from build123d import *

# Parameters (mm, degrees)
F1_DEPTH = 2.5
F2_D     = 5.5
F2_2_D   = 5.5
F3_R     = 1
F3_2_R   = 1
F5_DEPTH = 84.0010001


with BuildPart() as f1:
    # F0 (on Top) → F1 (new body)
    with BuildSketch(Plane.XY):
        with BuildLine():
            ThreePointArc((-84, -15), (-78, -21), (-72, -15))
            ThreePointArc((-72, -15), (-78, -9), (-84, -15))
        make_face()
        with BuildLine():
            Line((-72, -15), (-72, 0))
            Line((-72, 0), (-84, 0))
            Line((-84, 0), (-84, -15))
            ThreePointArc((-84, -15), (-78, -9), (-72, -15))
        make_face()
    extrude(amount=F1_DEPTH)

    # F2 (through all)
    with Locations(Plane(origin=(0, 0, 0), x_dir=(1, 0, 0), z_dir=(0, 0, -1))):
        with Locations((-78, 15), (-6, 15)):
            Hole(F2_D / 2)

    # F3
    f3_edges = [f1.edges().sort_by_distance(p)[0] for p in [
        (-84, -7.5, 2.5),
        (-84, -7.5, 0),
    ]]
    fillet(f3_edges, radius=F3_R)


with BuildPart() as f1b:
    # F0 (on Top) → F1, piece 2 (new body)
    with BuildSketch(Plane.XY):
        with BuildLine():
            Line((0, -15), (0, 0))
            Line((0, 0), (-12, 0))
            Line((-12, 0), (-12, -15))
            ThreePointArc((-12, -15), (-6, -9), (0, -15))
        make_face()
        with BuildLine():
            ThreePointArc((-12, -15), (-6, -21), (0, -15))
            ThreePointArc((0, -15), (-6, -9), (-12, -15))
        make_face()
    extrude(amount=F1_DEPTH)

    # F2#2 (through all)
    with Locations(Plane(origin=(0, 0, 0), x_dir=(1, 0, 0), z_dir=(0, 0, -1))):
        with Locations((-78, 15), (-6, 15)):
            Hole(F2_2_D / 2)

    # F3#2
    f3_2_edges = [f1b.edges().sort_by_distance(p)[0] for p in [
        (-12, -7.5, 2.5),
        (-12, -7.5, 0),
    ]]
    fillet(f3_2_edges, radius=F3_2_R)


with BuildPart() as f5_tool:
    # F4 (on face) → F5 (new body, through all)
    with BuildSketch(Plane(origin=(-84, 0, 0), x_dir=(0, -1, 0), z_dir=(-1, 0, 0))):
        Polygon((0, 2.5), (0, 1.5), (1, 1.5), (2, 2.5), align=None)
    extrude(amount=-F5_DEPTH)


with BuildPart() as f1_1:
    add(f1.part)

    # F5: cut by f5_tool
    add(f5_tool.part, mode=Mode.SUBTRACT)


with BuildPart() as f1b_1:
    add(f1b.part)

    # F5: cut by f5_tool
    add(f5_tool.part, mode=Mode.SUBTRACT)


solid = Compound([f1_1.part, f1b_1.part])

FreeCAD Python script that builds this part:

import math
import FreeCAD as App
import Part
import Sketcher
Q = App.Units.Quantity


def edges_at(feature, points):
    """Names of the edges that pass closest to the given points."""
    edges = feature.Shape.Edges
    near = lambda p: min(range(len(edges)), key=lambda i: edges[i].distToShape(Part.Vertex(*p))[0])
    return sorted({f"Edge{near(p) + 1}" for p in points})


def add_polygon(sketch, points):
    """Adds a closed chain of lines whose ends are joined by coincident constraints."""
    first, n = sketch.GeometryCount, len(points)
    for a, b in zip(points, points[1:] + points[:1]):
        sketch.addGeometry(Part.LineSegment(App.Vector(*a, 0), App.Vector(*b, 0)), False)
    for i in range(n):
        sketch.addConstraint(Sketcher.Constraint("Coincident", first + i, 2, first + (i + 1) % n, 1))

doc = App.newDocument("Part")
body = doc.addObject("PartDesign::Body", "Body")

# Sketch on XY plane
sketch1 = doc.addObject("Sketcher::SketchObject", "Sketch")
body.addObject(sketch1)
sketch1.AttachmentSupport = (doc.XY_Plane, [""])
sketch1.MapMode = "FlatFace"
sketch1.addGeometry([
    Part.ArcOfCircle(Part.Circle(App.Vector(-78, -15, 0), App.Vector(0, 0, 1), 6), math.radians(180), math.radians(360)),
    Part.LineSegment(App.Vector(-72, -15, 0), App.Vector(-72, 0, 0)),
    Part.LineSegment(App.Vector(-72, 0, 0), App.Vector(-84, 0, 0)),
    Part.LineSegment(App.Vector(-84, 0, 0), App.Vector(-84, -15, 0)),
], False)
sketch1.addConstraint([
    Sketcher.Constraint("Tangent", 0, 2, 1, 1),
    Sketcher.Constraint("Coincident", 1, 2, 2, 1),
    Sketcher.Constraint("Coincident", 2, 2, 3, 1),
    Sketcher.Constraint("Tangent", 3, 2, 0, 1),
    Sketcher.Constraint("Vertical", 1),
    Sketcher.Constraint("Horizontal", 2),
    Sketcher.Constraint("Vertical", 3),
    Sketcher.Constraint("PointOnObject", 1, 2, -1),
    Sketcher.Constraint("Radius", 0, Q("6 mm")),
    Sketcher.Constraint("DistanceY", 1, 1, 1, 2, Q("15 mm")),
    Sketcher.Constraint("DistanceX", 0, 3, -1, 1, Q("78 mm")),
])
pad1 = doc.addObject("PartDesign::Pad", "Pad")
body.addObject(pad1)
pad1.Profile = sketch1
pad1.Length = 2.5

# Sketch on XY plane
sketch2 = doc.addObject("Sketcher::SketchObject", "Sketch001")
body.addObject(sketch2)
sketch2.AttachmentSupport = (doc.XY_Plane, [""])
sketch2.MapMode = "FlatFace"
sketch2.addGeometry([
    Part.Circle(App.Vector(-78, -15, 0), App.Vector(0, 0, 1), 2.8),
    Part.Circle(App.Vector(-6, -15, 0), App.Vector(0, 0, 1), 2.8),
], False)
sketch2.addConstraint([
    Sketcher.Constraint("Equal", 0, 1),
    Sketcher.Constraint("Horizontal", 0, 3, 1, 3),
    Sketcher.Constraint("Diameter", 0, Q("5.5 mm")),
    Sketcher.Constraint("DistanceX", 0, 3, -1, 1, Q("78 mm")),
    Sketcher.Constraint("DistanceY", 0, 3, -1, 1, Q("15 mm")),
    Sketcher.Constraint("DistanceX", 1, 3, -1, 1, Q("6 mm")),
])
doc.recompute()
hole = doc.addObject("PartDesign::Hole", "Hole")
body.addObject(hole)
hole.Profile = sketch2
hole.ThreadType = "None"
hole.Diameter = 5.5
hole.DepthType = "ThroughAll"
hole.Reversed = True
doc.recompute()

fillet = doc.addObject("PartDesign::Fillet", "Fillet")
body.addObject(fillet)
fillet.Base = (hole, edges_at(hole, [(-84, -7.5, 2.5), (-84, -7.5, 0)]))
fillet.Radius = 1
body2 = doc.addObject("PartDesign::Body", "Body001")

# Sketch on XY plane
sketch3 = doc.addObject("Sketcher::SketchObject", "Sketch002")
body2.addObject(sketch3)
sketch3.AttachmentSupport = (doc.getObject("XY_Plane001"), [""])
sketch3.MapMode = "FlatFace"
sketch3.addGeometry([
    Part.LineSegment(App.Vector(0, -15, 0), App.Vector(0, 0, 0)),
    Part.LineSegment(App.Vector(0, 0, 0), App.Vector(-12, 0, 0)),
    Part.LineSegment(App.Vector(-12, 0, 0), App.Vector(-12, -15, 0)),
    Part.ArcOfCircle(Part.Circle(App.Vector(-6, -15, 0), App.Vector(0, 0, 1), 6), math.radians(180), math.radians(360)),
], False)
sketch3.addConstraint([
    Sketcher.Constraint("Coincident", 0, 2, 1, 1),
    Sketcher.Constraint("Coincident", 1, 2, 2, 1),
    Sketcher.Constraint("Tangent", 2, 2, 3, 1),
    Sketcher.Constraint("Tangent", 3, 2, 0, 1),
    Sketcher.Constraint("Vertical", 0),
    Sketcher.Constraint("Horizontal", 1),
    Sketcher.Constraint("Vertical", 2),
    Sketcher.Constraint("Coincident", 0, 2, -1, 1),
    Sketcher.Constraint("Radius", 3, Q("6 mm")),
    Sketcher.Constraint("DistanceY", 0, 1, 0, 2, Q("15 mm")),
])
pad2 = doc.addObject("PartDesign::Pad", "Pad001")
body2.addObject(pad2)
pad2.Profile = sketch3
pad2.Length = 2.5

# Sketch on XY plane
sketch4 = doc.addObject("Sketcher::SketchObject", "Sketch003")
body2.addObject(sketch4)
sketch4.AttachmentSupport = (doc.getObject("XY_Plane001"), [""])
sketch4.MapMode = "FlatFace"
sketch4.addGeometry([
    Part.Circle(App.Vector(-78, -15, 0), App.Vector(0, 0, 1), 2.8),
    Part.Circle(App.Vector(-6, -15, 0), App.Vector(0, 0, 1), 2.8),
], False)
sketch4.addConstraint([
    Sketcher.Constraint("Equal", 0, 1),
    Sketcher.Constraint("Horizontal", 0, 3, 1, 3),
    Sketcher.Constraint("Diameter", 0, Q("5.5 mm")),
    Sketcher.Constraint("DistanceX", 0, 3, -1, 1, Q("78 mm")),
    Sketcher.Constraint("DistanceY", 0, 3, -1, 1, Q("15 mm")),
    Sketcher.Constraint("DistanceX", 1, 3, -1, 1, Q("6 mm")),
])
doc.recompute()
hole2 = doc.addObject("PartDesign::Hole", "Hole001")
body2.addObject(hole2)
hole2.Profile = sketch4
hole2.ThreadType = "None"
hole2.Diameter = 5.5
hole2.DepthType = "ThroughAll"
hole2.Reversed = True
doc.recompute()

fillet2 = doc.addObject("PartDesign::Fillet", "Fillet001")
body2.addObject(fillet2)
fillet2.Base = (hole2, edges_at(hole2, [(-12, -7.5, 2.5), (-12, -7.5, 0)]))
fillet2.Radius = 1
body3 = doc.addObject("PartDesign::Body", "Body002")

# Sketch on YZ plane
sketch5 = doc.addObject("Sketcher::SketchObject", "Sketch004")
body3.addObject(sketch5)
sketch5.AttachmentSupport = (doc.getObject("YZ_Plane002"), [""])
sketch5.MapMode = "FlatFace"
sketch5.AttachmentOffset = App.Placement(App.Vector(0, 0, -84), App.Rotation())
add_polygon(sketch5, [(0, 2.5), (0, 1.5), (-1, 1.5), (-2, 2.5)])  # lines 0-3
sketch5.addConstraint([
    Sketcher.Constraint("Vertical", 0),
    Sketcher.Constraint("Horizontal", 1),
    Sketcher.Constraint("Horizontal", 3),
    Sketcher.Constraint("PointOnObject", 0, 2, -2),
    Sketcher.Constraint("Equal", 1, 0),
    Sketcher.Constraint("DistanceX", 1, 2, 1, 1, Q("1 mm")),
    Sketcher.Constraint("DistanceX", 3, 1, 3, 2, Q("2 mm")),
    Sketcher.Constraint("DistanceY", -1, 1, 0, 2, Q("1.5 mm")),
])
pad3 = doc.addObject("PartDesign::Pad", "Pad002")
body3.addObject(pad3)
pad3.Profile = sketch5
pad3.Length = 84.001
doc.recompute()

body4 = doc.addObject("PartDesign::Body", "Body003")
body4.BaseFeature = body3
boolean = doc.addObject("PartDesign::Boolean", "Boolean")
body.addObject(boolean)
boolean.Type = "Cut"
boolean.addObjects([body4])
doc.recompute()

boolean2 = doc.addObject("PartDesign::Boolean", "Boolean001")
body2.addObject(boolean2)
boolean2.Type = "Cut"
boolean2.addObjects([body3])

doc.recompute()
